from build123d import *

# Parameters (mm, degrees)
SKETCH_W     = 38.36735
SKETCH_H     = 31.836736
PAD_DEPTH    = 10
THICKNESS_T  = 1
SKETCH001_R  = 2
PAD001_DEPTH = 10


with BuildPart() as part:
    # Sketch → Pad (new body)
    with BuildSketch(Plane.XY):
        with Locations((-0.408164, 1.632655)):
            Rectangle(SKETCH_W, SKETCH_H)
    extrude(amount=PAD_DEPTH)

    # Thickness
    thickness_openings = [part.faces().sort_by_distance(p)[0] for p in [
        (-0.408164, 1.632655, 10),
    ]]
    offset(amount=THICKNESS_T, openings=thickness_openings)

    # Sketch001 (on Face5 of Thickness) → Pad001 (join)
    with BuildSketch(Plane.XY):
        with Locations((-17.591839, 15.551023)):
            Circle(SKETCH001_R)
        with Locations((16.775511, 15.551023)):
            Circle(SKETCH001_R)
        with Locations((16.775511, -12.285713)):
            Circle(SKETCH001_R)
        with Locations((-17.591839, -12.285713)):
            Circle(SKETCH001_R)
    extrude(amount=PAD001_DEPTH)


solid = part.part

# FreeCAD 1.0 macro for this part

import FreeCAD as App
import Part
import Sketcher
from FreeCAD import Vector


def faces_at(feature, points):
    """Names of the faces that lie closest to the given points."""
    faces = feature.Shape.Faces
    near = lambda p: min(range(len(faces)), key=lambda i: faces[i].distToShape(Part.Vertex(*p))[0])
    return sorted({f"Face{near(p) + 1}" for p in points})


def add_polygon(sketch, points):
    """Adds a closed chain of lines whose ends are joined by coincident constraints."""
    first, n = sketch.GeometryCount, len(points)
    for a, b in zip(points, points[1:] + points[:1]):
        sketch.addGeometry(Part.LineSegment(App.Vector(*a, 0), App.Vector(*b, 0)), False)
    for i in range(n):
        sketch.addConstraint(Sketcher.Constraint("Coincident", first + i, 2, first + (i + 1) % n, 1))

doc = App.newDocument("Part")
body = doc.addObject("PartDesign::Body", "Body")

sketch1 = body.newObject("Sketcher::SketchObject", "Sketch")
sketch1.AttachmentSupport = (doc.getObject("XY_Plane"), [""])
sketch1.MapMode = "FlatFace"
add_polygon(sketch1, [(-19.591839, 17.551023), (-19.591839, -14.285713), (18.775511, -14.285713), (18.775511, 17.551023)])
sketch1.addConstraint([
    Sketcher.Constraint("Vertical", 0),
    Sketcher.Constraint("Horizontal", 1),
    Sketcher.Constraint("Vertical", 2),
    Sketcher.Constraint("Horizontal", 3),
    Sketcher.Constraint("DistanceX", 1, 1, 1, 2, 38.36735),
    Sketcher.Constraint("DistanceY", 0, 2, 0, 1, 31.836736),
    Sketcher.Constraint("DistanceX", 0, 2, -1, 1, 19.591839),
    Sketcher.Constraint("DistanceY", 0, 2, -1, 1, 14.285713),
])
pad1 = body.newObject("PartDesign::Pad", "Pad")
pad1.Profile = sketch1
pad1.Length = 10
doc.recompute()

thickness = body.newObject("PartDesign::Thickness", "Thickness")
thickness.Base = (pad1, faces_at(pad1, [(-0.408, 1.633, 10)]))
thickness.Value = 1
thickness.Reversed = False
thickness.Join = "Arc"

sketch2 = body.newObject("Sketcher::SketchObject", "Sketch001")
sketch2.AttachmentSupport = (doc.getObject("XY_Plane"), [""])
sketch2.MapMode = "FlatFace"
sketch2.addGeometry([
    Part.Circle(Vector(-17.591839, 15.551023, 0), Vector(0, 0, 1), 2),
    Part.Circle(Vector(16.775511, 15.551023, 0), Vector(0, 0, 1), 2),
    Part.Circle(Vector(16.775511, -12.285713, 0), Vector(0, 0, 1), 2),
    Part.Circle(Vector(-17.591839, -12.285713, 0), Vector(0, 0, 1), 2),
], False)
sketch2.addConstraint([
    Sketcher.Constraint("Equal", 0, 1),
    Sketcher.Constraint("Equal", 1, 2),
    Sketcher.Constraint("Equal", 2, 3),
    Sketcher.Constraint("Horizontal", 0, 3, 1, 3),
    Sketcher.Constraint("Horizontal", 2, 3, 3, 3),
    Sketcher.Constraint("Vertical", 1, 3, 2, 3),
    Sketcher.Constraint("Vertical", 0, 3, 3, 3),
    Sketcher.Constraint("Diameter", 0, 4.0),
    Sketcher.Constraint("DistanceX", 0, 3, -1, 1, 17.591839),
    Sketcher.Constraint("DistanceX", -1, 1, 1, 3, 16.775511),
    Sketcher.Constraint("DistanceY", -1, 1, 0, 3, 15.551023),
    Sketcher.Constraint("DistanceY", 2, 3, -1, 1, 12.285713),
])
pad2 = body.newObject("PartDesign::Pad", "Pad001")
pad2.Profile = sketch2
pad2.Length = 10

doc.recompute()
